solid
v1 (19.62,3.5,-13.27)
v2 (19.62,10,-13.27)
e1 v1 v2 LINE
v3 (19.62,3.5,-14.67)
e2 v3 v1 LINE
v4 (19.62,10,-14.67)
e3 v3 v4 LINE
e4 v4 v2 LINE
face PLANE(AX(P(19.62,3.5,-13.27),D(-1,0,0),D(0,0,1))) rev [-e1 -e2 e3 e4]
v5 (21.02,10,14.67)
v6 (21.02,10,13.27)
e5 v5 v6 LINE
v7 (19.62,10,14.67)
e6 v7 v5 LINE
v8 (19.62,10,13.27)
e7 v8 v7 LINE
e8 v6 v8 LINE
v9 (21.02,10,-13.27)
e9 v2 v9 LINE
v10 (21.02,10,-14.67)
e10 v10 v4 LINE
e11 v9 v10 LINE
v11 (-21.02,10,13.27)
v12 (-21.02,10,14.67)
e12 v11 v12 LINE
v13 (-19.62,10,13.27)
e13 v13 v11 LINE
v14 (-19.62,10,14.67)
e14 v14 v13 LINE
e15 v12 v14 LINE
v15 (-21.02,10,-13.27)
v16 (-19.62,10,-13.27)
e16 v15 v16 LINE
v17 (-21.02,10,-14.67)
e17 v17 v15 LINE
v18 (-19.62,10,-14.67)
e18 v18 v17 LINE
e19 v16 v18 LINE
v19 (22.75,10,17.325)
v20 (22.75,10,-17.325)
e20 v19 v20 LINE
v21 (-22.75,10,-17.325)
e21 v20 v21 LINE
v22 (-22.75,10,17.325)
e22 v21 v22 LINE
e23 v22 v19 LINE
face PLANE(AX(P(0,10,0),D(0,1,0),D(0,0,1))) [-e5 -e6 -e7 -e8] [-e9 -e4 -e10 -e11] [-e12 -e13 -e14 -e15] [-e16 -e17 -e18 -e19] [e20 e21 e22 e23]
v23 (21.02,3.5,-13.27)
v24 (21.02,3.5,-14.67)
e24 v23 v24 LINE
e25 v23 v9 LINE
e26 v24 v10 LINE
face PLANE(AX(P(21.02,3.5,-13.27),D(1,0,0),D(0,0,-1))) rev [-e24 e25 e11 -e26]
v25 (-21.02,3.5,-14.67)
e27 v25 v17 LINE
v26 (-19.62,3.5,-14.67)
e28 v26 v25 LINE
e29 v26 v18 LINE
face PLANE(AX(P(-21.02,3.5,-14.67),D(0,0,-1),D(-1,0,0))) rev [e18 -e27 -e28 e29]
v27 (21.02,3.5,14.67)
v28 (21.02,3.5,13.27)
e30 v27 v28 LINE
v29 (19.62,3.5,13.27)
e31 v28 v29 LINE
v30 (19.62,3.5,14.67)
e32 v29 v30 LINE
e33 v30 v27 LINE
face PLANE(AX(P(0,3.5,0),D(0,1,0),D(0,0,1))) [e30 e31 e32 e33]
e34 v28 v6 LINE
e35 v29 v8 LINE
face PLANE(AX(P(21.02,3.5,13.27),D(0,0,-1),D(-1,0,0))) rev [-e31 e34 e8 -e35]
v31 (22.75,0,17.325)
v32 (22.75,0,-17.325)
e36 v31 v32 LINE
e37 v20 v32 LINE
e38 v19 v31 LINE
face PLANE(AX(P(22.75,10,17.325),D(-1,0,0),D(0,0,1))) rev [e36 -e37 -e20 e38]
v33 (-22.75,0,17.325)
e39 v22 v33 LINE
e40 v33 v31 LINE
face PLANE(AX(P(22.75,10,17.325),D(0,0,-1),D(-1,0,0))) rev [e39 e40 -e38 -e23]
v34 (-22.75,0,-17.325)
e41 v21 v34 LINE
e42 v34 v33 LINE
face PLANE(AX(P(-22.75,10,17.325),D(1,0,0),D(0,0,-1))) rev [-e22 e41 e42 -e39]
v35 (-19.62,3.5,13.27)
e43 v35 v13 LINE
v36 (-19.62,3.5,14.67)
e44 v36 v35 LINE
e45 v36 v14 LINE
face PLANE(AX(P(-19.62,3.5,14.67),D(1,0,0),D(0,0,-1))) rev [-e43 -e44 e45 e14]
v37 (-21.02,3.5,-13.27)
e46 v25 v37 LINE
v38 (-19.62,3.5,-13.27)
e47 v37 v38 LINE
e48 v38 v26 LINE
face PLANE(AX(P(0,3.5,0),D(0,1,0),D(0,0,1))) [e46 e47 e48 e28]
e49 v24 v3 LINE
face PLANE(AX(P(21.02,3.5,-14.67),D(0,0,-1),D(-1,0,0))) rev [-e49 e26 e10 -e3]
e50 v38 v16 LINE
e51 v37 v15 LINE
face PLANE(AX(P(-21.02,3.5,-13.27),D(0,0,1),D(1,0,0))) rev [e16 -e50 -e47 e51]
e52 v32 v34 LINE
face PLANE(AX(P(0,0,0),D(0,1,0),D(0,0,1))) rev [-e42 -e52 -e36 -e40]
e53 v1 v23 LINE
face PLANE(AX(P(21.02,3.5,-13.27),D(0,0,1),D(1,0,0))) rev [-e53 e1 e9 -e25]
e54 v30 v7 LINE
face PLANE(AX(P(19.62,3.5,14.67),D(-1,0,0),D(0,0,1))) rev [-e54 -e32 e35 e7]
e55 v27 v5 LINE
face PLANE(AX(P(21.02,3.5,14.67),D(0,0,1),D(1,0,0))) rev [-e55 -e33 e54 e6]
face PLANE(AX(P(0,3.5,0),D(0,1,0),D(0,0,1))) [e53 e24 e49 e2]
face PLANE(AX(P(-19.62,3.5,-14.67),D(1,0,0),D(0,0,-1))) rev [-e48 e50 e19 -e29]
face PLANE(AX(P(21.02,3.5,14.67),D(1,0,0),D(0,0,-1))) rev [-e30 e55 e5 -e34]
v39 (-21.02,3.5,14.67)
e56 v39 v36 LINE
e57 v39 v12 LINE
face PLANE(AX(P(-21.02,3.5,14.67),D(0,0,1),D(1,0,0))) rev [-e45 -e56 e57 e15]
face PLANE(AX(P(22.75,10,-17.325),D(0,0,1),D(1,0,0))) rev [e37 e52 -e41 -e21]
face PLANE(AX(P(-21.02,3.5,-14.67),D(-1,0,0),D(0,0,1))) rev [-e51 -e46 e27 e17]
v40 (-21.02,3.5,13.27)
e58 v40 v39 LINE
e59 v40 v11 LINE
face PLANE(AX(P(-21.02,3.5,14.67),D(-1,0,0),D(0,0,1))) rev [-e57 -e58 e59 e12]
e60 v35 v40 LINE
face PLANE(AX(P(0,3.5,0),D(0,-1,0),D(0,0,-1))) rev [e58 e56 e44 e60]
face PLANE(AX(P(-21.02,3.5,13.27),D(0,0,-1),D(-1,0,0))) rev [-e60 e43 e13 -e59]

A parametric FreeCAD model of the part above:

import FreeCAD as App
import Part
import Sketcher
Q = App.Units.Quantity

doc = App.newDocument("Part")
params = doc.addObject("Spreadsheet::Sheet", "Params")
for row, (alias, value) in enumerate([
    ("sketch1_width", "45.5 mm"),
    ("sketch1_height", "34.65 mm"),
    ("pad1_length", "10 mm"),
    ("sketch2_width", "1.4 mm"),
    ("pocket1_length", "6.5 mm"),
], start=1):
    params.set(f"A{row}", alias)
    params.set(f"B{row}", "=" + value)
    params.setAlias(f"B{row}", alias)

body = doc.addObject("PartDesign::Body", "Body")

# Sketch on XZ plane
sketch1 = body.newObject("Sketcher::SketchObject", "Sketch")
sketch1.AttachmentSupport = (doc.getObject("XZ_Plane"), [""])
sketch1.MapMode = "FlatFace"
sketch1.addGeometry(Part.LineSegment(App.Vector(-23, -17, 0), App.Vector(-23, 17, 0)), False)
sketch1.addGeometry(Part.LineSegment(App.Vector(-23, 17, 0), App.Vector(23, 17, 0)), False)
sketch1.addGeometry(Part.LineSegment(App.Vector(23, 17, 0), App.Vector(23, -17, 0)), False)
sketch1.addGeometry(Part.LineSegment(App.Vector(23, -17, 0), App.Vector(-23, -17, 0)), False)
sketch1.addConstraint(Sketcher.Constraint("Coincident", 0, 2, 1, 1))
sketch1.addConstraint(Sketcher.Constraint("Coincident", 1, 2, 2, 1))
sketch1.addConstraint(Sketcher.Constraint("Coincident", 2, 2, 3, 1))
sketch1.addConstraint(Sketcher.Constraint("Coincident", 3, 2, 0, 1))
sketch1.addConstraint(Sketcher.Constraint("Vertical", 0))
sketch1.addConstraint(Sketcher.Constraint("Horizontal", 1))
sketch1.addConstraint(Sketcher.Constraint("Vertical", 2))
sketch1.addConstraint(Sketcher.Constraint("Horizontal", 3))
sketch1.addConstraint(Sketcher.Constraint("Symmetric", 0, 2, 2, 2, -1, 1))
sketch1.addConstraint(Sketcher.Constraint("DistanceX", 1, 1, 1, 2, Q("45.5 mm")))
sketch1.addConstraint(Sketcher.Constraint("DistanceY", 0, 1, 0, 2, Q("34.65 mm")))
sketch1.setExpression("Constraints[9]", "Params.sketch1_width")
sketch1.setExpression("Constraints[10]", "Params.sketch1_height")
pad1 = body.newObject("PartDesign::Pad", "Pad")
pad1.Profile = sketch1
pad1.setExpression("Length", "Params.pad1_length")
pad1.Reversed = True

# Sketch on XZ plane
sketch2 = body.newObject("Sketcher::SketchObject", "Sketch001")
sketch2.AttachmentSupport = (doc.getObject("XZ_Plane"), [""])
sketch2.MapMode = "FlatFace"
sketch2.AttachmentOffset = App.Placement(App.Vector(0, 0, -10), App.Rotation())
sketch2.addGeometry(Part.LineSegment(App.Vector(-21, -14.7, 0), App.Vector(-21, -13.3, 0)), False)
sketch2.addGeometry(Part.LineSegment(App.Vector(-21, -13.3, 0), App.Vector(-19.6, -13.3, 0)), False)
sketch2.addGeometry(Part.LineSegment(App.Vector(-19.6, -13.3, 0), App.Vector(-19.6, -14.7, 0)), False)
sketch2.addGeometry(Part.LineSegment(App.Vector(-19.6, -14.7, 0), App.Vector(-21, -14.7, 0)), False)
sketch2.addGeometry(Part.LineSegment(App.Vector(19.6, -14.7, 0), App.Vector(19.6, -13.3, 0)), False)
sketch2.addGeometry(Part.LineSegment(App.Vector(19.6, -13.3, 0), App.Vector(21, -13.3, 0)), False)
sketch2.addGeometry(Part.LineSegment(App.Vector(21, -13.3, 0), App.Vector(21, -14.7, 0)), False)
sketch2.addGeometry(Part.LineSegment(App.Vector(21, -14.7, 0), App.Vector(19.6, -14.7, 0)), False)
sketch2.addGeometry(Part.LineSegment(App.Vector(-21, 13.3, 0), App.Vector(-21, 14.7, 0)), False)
sketch2.addGeometry(Part.LineSegment(App.Vector(-21, 14.7, 0), App.Vector(-19.6, 14.7, 0)), False)
sketch2.addGeometry(Part.LineSegment(App.Vector(-19.6, 14.7, 0), App.Vector(-19.6, 13.3, 0)), False)
sketch2.addGeometry(Part.LineSegment(App.Vector(-19.6, 13.3, 0), App.Vector(-21, 13.3, 0)), False)
sketch2.addGeometry(Part.LineSegment(App.Vector(19.6, 13.3, 0), App.Vector(19.6, 14.7, 0)), False)
sketch2.addGeometry(Part.LineSegment(App.Vector(19.6, 14.7, 0), App.Vector(21, 14.7, 0)), False)
sketch2.addGeometry(Part.LineSegment(App.Vector(21, 14.7, 0), App.Vector(21, 13.3, 0)), False)
sketch2.addGeometry(Part.LineSegment(App.Vector(21, 13.3, 0), App.Vector(19.6, 13.3, 0)), False)
sketch2.addConstraint(Sketcher.Constraint("Coincident", 0, 2, 1, 1))
sketch2.addConstraint(Sketcher.Constraint("Coincident", 1, 2, 2, 1))
sketch2.addConstraint(Sketcher.Constraint("Coincident", 2, 2, 3, 1))
sketch2.addConstraint(Sketcher.Constraint("Coincident", 3, 2, 0, 1))
sketch2.addConstraint(Sketcher.Constraint("Coincident", 4, 2, 5, 1))
sketch2.addConstraint(Sketcher.Constraint("Coincident", 5, 2, 6, 1))
sketch2.addConstraint(Sketcher.Constraint("Coincident", 6, 2, 7, 1))
sketch2.addConstraint(Sketcher.Constraint("Coincident", 7, 2, 4, 1))
sketch2.addConstraint(Sketcher.Constraint("Coincident", 8, 2, 9, 1))
sketch2.addConstraint(Sketcher.Constraint("Coincident", 9, 2, 10, 1))
sketch2.addConstraint(Sketcher.Constraint("Coincident", 10, 2, 11, 1))
sketch2.addConstraint(Sketcher.Constraint("Coincident", 11, 2, 8, 1))
sketch2.addConstraint(Sketcher.Constraint("Coincident", 12, 2, 13, 1))
sketch2.addConstraint(Sketcher.Constraint("Coincident", 13, 2, 14, 1))
sketch2.addConstraint(Sketcher.Constraint("Coincident", 14, 2, 15, 1))
sketch2.addConstraint(Sketcher.Constraint("Coincident", 15, 2, 12, 1))
sketch2.addConstraint(Sketcher.Constraint("Vertical", 0))
sketch2.addConstraint(Sketcher.Constraint("Horizontal", 1))
sketch2.addConstraint(Sketcher.Constraint("Vertical", 2))
sketch2.addConstraint(Sketcher.Constraint("Horizontal", 3))
sketch2.addConstraint(Sketcher.Constraint("Vertical", 4))
sketch2.addConstraint(Sketcher.Constraint("Horizontal", 5))
sketch2.addConstraint(Sketcher.Constraint("Vertical", 6))
sketch2.addConstraint(Sketcher.Constraint("Horizontal", 7))
sketch2.addConstraint(Sketcher.Constraint("Vertical", 8))
sketch2.addConstraint(Sketcher.Constraint("Horizontal", 9))
sketch2.addConstraint(Sketcher.Constraint("Vertical", 10))
sketch2.addConstraint(Sketcher.Constraint("Horizontal", 11))
sketch2.addConstraint(Sketcher.Constraint("Vertical", 12))
sketch2.addConstraint(Sketcher.Constraint("Horizontal", 13))
sketch2.addConstraint(Sketcher.Constraint("Vertical", 14))
sketch2.addConstraint(Sketcher.Constraint("Horizontal", 15))
sketch2.addConstraint(Sketcher.Constraint("Symmetric", 6, 2, 8, 2, -1, 1))
sketch2.addConstraint(Sketcher.Constraint("Symmetric", 4, 2, 10, 2, -1, 1))
sketch2.addConstraint(Sketcher.Constraint("Symmetric", 2, 2, 12, 2, -1, 1))
sketch2.addConstraint(Sketcher.Constraint("Symmetric", 0, 2, 14, 2, -1, 1))
sketch2.addConstraint(Sketcher.Constraint("Symmetric", 1, 2, 4, 2, -2))
sketch2.addConstraint(Sketcher.Constraint("Symmetric", 3, 2, 6, 2, -2))
sketch2.addConstraint(Sketcher.Constraint("Equal", 15, 0))
sketch2.addConstraint(Sketcher.Constraint("DistanceX", 1, 1, 1, 2, Q("1.4 mm")))
sketch2.addConstraint(Sketcher.Constraint("DistanceX", 0, 2, -1, 1, Q("21.02 mm")))
sketch2.addConstraint(Sketcher.Constraint("DistanceY", 0, 2, -1, 1, Q("13.27 mm")))
sketch2.setExpression("Constraints[39]", "Params.sketch2_width")
pocket1 = body.newObject("PartDesign::Pocket", "Pocket")
pocket1.Profile = sketch2
pocket1.setExpression("Length", "Params.pocket1_length")
pocket1.Reversed = True

doc.recompute()
